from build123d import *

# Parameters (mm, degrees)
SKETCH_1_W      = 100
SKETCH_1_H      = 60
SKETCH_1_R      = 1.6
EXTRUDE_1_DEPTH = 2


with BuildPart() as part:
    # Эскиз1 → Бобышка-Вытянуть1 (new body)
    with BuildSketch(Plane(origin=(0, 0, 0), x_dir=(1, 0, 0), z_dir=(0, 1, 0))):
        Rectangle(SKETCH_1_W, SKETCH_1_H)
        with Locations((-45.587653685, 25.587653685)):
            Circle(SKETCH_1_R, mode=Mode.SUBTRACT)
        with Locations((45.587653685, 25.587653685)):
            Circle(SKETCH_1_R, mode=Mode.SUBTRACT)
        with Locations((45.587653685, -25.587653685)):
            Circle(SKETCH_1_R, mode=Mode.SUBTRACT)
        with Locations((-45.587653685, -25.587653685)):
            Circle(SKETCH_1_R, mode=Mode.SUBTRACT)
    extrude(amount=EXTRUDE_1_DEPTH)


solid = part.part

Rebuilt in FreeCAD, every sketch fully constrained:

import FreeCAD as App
import Part
import Sketcher

V = App.Vector
Q = App.Units.Quantity


def add_polygon(sketch, points):
    """Adds a closed chain of lines whose ends are joined by coincident constraints."""
    first, n = sketch.GeometryCount, len(points)
    for a, b in zip(points, points[1:] + points[:1]):
        sketch.addGeometry(Part.LineSegment(App.Vector(*a, 0), App.Vector(*b, 0)), False)
    for i in range(n):
        sketch.addConstraint(Sketcher.Constraint("Coincident", first + i, 2, first + (i + 1) % n, 1))

doc = App.newDocument("Part")
params = doc.addObject("Spreadsheet::Sheet", "Params")
for row, (alias, value) in enumerate([
    ("sketch1_diameter", "3.2 mm"),
    ("sketch1_width", "100 mm"),
    ("sketch1_height", "60 mm"),
    ("pad1_length", "2 mm"),
], start=1):
    params.set(f"A{row}", alias)
    params.set(f"B{row}", "=" + value)
    params.setAlias(f"B{row}", alias)

body = doc.addObject("PartDesign::Body", "Body")

# Sketch on XZ plane
sketch1 = doc.addObject("Sketcher::SketchObject", "Sketch")
body.addObject(sketch1)
sketch1.AttachmentSupport = (doc.XZ_Plane, [""])
sketch1.MapMode = "FlatFace"
add_polygon(sketch1, [(-50, -30), (-50, 30), (50, 30), (50, -30)])  # lines 0-3
sketch1.addGeometry(Part.Circle(V(-45.6, 25.6, 0), V(0, 0, 1), 1.6), False)  # 4
sketch1.addGeometry(Part.Circle(V(45.6, 25.6, 0), V(0, 0, 1), 1.6), False)  # 5
sketch1.addGeometry(Part.Circle(V(-45.6, -25.6, 0), V(0, 0, 1), 1.6), False)  # 6
sketch1.addGeometry(Part.Circle(V(45.6, -25.6, 0), V(0, 0, 1), 1.6), False)  # 7
sketch1.addConstraint(Sketcher.Constraint("Vertical", 0))
sketch1.addConstraint(Sketcher.Constraint("Horizontal", 1))
sketch1.addConstraint(Sketcher.Constraint("Vertical", 2))
sketch1.addConstraint(Sketcher.Constraint("Horizontal", 3))
sketch1.addConstraint(Sketcher.Constraint("Equal", 4, 5))
sketch1.addConstraint(Sketcher.Constraint("Equal", 5, 6))
sketch1.addConstraint(Sketcher.Constraint("Equal", 6, 7))
sketch1.addConstraint(Sketcher.Constraint("Symmetric", 5, 3, 6, 3, -1, 1))
sketch1.addConstraint(Sketcher.Constraint("Symmetric", 4, 3, 7, 3, -1, 1))
sketch1.addConstraint(Sketcher.Constraint("Symmetric", 0, 2, 2, 2, -1, 1))
sketch1.addConstraint(Sketcher.Constraint("Symmetric", 4, 3, 5, 3, -2))
sketch1.addConstraint(Sketcher.Constraint("Diameter", 4, Q("3.2 mm")))
sketch1.addConstraint(Sketcher.Constraint("DistanceX", 1, 1, 1, 2, Q("100 mm")))
sketch1.addConstraint(Sketcher.Constraint("DistanceY", 0, 1, 0, 2, Q("60 mm")))
sketch1.addConstraint(Sketcher.Constraint("DistanceX", 4, 3, -1, 1, Q("45.587654 mm")))
sketch1.addConstraint(Sketcher.Constraint("DistanceY", -1, 1, 4, 3, Q("25.587654 mm")))
sketch1.setExpression("Constraints[15]", "Params.sketch1_diameter")
sketch1.setExpression("Constraints[16]", "Params.sketch1_width")
sketch1.setExpression("Constraints[17]", "Params.sketch1_height")
pad1 = doc.addObject("PartDesign::Pad", "Pad")
body.addObject(pad1)
pad1.Profile = sketch1
pad1.setExpression("Length", "Params.pad1_length")
pad1.Reversed = True

doc.recompute()
